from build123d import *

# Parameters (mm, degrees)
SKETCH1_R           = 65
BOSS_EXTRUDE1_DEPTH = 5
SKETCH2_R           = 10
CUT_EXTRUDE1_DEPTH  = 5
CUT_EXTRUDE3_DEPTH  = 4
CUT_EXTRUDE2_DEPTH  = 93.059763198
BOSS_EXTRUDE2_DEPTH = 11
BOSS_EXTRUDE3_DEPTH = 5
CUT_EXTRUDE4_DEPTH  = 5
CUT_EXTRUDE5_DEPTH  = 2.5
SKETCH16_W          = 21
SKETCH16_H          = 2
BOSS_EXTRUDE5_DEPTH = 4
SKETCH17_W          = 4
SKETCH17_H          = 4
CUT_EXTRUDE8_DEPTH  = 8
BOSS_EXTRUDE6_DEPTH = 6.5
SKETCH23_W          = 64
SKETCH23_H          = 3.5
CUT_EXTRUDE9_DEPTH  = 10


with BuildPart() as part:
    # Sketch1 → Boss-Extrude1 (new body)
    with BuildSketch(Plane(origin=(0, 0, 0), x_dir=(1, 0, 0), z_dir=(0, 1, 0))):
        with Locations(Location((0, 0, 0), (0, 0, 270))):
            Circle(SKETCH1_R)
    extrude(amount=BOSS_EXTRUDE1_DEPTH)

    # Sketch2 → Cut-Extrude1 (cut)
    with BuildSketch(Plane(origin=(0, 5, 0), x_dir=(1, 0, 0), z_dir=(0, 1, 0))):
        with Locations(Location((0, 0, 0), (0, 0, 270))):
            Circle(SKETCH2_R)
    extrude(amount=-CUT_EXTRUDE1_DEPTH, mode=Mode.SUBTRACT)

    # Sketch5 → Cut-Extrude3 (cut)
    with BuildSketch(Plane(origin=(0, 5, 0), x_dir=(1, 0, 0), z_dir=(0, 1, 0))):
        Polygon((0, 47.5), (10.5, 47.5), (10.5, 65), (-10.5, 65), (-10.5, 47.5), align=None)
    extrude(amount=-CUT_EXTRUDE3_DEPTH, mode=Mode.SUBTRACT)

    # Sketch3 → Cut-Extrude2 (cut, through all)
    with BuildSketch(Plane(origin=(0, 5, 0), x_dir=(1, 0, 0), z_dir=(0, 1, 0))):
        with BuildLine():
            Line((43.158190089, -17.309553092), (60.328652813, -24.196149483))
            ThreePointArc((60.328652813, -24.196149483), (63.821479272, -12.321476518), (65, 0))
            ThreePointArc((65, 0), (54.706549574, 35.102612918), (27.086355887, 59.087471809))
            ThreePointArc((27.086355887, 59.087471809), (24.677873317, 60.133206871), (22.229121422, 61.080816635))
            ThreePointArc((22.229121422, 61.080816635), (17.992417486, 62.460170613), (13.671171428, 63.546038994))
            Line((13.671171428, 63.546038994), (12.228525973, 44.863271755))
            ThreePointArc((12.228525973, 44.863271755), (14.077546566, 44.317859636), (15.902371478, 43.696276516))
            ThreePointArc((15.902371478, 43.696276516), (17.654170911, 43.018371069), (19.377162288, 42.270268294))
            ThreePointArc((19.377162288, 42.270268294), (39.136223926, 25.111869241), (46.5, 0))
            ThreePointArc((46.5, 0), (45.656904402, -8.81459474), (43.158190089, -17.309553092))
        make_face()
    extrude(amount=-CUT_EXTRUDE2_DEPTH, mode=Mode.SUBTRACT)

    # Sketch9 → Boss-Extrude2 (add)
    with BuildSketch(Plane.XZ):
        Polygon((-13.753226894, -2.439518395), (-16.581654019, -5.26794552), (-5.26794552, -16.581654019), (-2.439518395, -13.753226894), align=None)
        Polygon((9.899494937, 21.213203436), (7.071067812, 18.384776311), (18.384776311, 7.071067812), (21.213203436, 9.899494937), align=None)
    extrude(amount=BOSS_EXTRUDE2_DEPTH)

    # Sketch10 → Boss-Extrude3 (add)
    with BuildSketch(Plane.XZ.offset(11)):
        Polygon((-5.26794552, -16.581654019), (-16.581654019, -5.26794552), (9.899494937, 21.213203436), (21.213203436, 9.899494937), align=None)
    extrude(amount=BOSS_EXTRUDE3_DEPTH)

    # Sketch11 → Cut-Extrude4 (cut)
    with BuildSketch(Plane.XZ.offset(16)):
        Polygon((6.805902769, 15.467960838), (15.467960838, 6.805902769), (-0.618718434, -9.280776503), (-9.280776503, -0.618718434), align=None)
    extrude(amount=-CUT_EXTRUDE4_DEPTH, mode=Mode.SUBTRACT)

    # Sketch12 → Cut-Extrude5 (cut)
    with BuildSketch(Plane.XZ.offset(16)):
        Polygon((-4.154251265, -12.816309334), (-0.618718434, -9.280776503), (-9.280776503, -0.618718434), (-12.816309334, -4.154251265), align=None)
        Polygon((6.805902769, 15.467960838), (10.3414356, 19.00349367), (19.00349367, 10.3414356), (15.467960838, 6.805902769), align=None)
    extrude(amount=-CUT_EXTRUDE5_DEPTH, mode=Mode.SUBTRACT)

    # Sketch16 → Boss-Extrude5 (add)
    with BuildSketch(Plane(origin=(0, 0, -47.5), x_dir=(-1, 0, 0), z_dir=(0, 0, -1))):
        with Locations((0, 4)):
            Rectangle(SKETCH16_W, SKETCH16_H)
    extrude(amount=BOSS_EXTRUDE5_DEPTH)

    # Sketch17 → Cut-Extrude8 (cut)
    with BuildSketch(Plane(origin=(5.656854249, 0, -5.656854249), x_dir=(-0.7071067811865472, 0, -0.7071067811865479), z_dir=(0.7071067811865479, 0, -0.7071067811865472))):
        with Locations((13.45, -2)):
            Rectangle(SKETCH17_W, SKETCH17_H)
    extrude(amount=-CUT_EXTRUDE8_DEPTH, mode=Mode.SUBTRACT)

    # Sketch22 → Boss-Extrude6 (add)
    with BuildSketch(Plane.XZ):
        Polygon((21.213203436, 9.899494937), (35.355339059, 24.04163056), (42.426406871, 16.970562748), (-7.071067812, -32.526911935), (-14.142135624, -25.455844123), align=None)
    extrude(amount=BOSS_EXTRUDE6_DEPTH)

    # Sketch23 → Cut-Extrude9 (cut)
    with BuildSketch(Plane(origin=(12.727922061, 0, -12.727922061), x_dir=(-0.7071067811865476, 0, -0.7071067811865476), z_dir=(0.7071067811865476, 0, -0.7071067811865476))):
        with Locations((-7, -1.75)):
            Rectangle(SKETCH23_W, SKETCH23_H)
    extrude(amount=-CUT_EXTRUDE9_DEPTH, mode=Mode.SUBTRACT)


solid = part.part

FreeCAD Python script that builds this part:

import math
import FreeCAD as App
import Part
import Sketcher
Q = App.Units.Quantity


def add_polygon(sketch, points):
    """Adds a closed chain of lines whose ends are joined by coincident constraints."""
    first, n = sketch.GeometryCount, len(points)
    for a, b in zip(points, points[1:] + points[:1]):
        sketch.addGeometry(Part.LineSegment(App.Vector(*a, 0), App.Vector(*b, 0)), False)
    for i in range(n):
        sketch.addConstraint(Sketcher.Constraint("Coincident", first + i, 2, first + (i + 1) % n, 1))

doc = App.newDocument("Part")
params = doc.addObject("Spreadsheet::Sheet", "Params")
for row, (alias, value) in enumerate([
    ("sketch1_diameter", "130 mm"),
    ("pad1_length", "5 mm"),
    ("sketch2_diameter", "20 mm"),
    ("pocket1_length", "5 mm"),
    ("sketch3_width", "21 mm"),
    ("sketch3_height", "17.5 mm"),
    ("pocket2_length", "4 mm"),
    ("sketch4_radius", "65 mm"),
    ("sketch4_radius2", "46.5 mm"),
    ("sketch5_length", "4 mm"),
    ("sketch5_length2", "16 mm"),
    ("pad2_length", "11 mm"),
    ("sketch6_length", "16 mm"),
    ("sketch6_length2", "37.45 mm"),
    ("pad3_length", "5 mm"),
    ("sketch7_length", "12.25 mm"),
    ("sketch7_length2", "22.75 mm"),
    ("pocket4_length", "5 mm"),
    ("sketch8_length", "4.999998 mm"),
    ("sketch8_length2", "12.25 mm"),
    ("pocket5_length", "2.5 mm"),
    ("sketch9_width", "21 mm"),
    ("sketch9_height", "2 mm"),
    ("pad4_length", "4 mm"),
    ("sketch10_width", "4 mm"),
    ("pocket6_length", "8 mm"),
    ("sketch11_length", "70 mm"),
    ("sketch11_length2", "10 mm"),
    ("pad5_length", "6.5 mm"),
    ("sketch12_width", "64 mm"),
    ("sketch12_height", "3.5 mm"),
    ("pocket7_length", "10 mm"),
], start=1):
    params.set(f"A{row}", alias)
    params.set(f"B{row}", "=" + value)
    params.setAlias(f"B{row}", alias)

body = doc.addObject("PartDesign::Body", "Body")

sketch1 = doc.addObject("Sketcher::SketchObject", "Sketch")
body.addObject(sketch1)
sketch1.AttachmentSupport = (doc.XZ_Plane, [""])
sketch1.MapMode = "FlatFace"
sketch1.addGeometry(Part.Circle(App.Vector(0, 0, 0), App.Vector(0, 0, 1), 65), False)
sketch1.addConstraint(Sketcher.Constraint("Coincident", 0, 3, -1, 1))
sketch1.addConstraint(Sketcher.Constraint("Diameter", 0, 130.0))
sketch1.setExpression("Constraints[1]", "Params.sketch1_diameter")
pad1 = doc.addObject("PartDesign::Pad", "Pad")
body.addObject(pad1)
pad1.Profile = sketch1
pad1.setExpression("Length", "Params.pad1_length")
pad1.Reversed = True

sketch2 = doc.addObject("Sketcher::SketchObject", "Sketch001")
body.addObject(sketch2)
sketch2.AttachmentSupport = (doc.XZ_Plane, [""])
sketch2.MapMode = "FlatFace"
sketch2.AttachmentOffset = App.Placement(App.Vector(0, 0, -5), App.Rotation())
sketch2.addGeometry(Part.Circle(App.Vector(0, 0, 0), App.Vector(0, 0, 1), 10), False)
sketch2.addConstraint(Sketcher.Constraint("Coincident", 0, 3, -1, 1))
sketch2.addConstraint(Sketcher.Constraint("Diameter", 0, 20.0))
sketch2.setExpression("Constraints[1]", "Params.sketch2_diameter")
pocket1 = doc.addObject("PartDesign::Pocket", "Pocket")
body.addObject(pocket1)
pocket1.Profile = sketch2
pocket1.setExpression("Length", "Params.pocket1_length")
pocket1.Reversed = True

sketch3 = doc.addObject("Sketcher::SketchObject", "Sketch002")
body.addObject(sketch3)
sketch3.AttachmentSupport = (doc.XZ_Plane, [""])
sketch3.MapMode = "FlatFace"
sketch3.AttachmentOffset = App.Placement(App.Vector(0, 0, -5), App.Rotation())
add_polygon(sketch3, [(10, -48), (10, -65), (-10, -65), (-10, -48)])
sketch3.addConstraint(Sketcher.Constraint("Vertical", 0))
sketch3.addConstraint(Sketcher.Constraint("Horizontal", 1))
sketch3.addConstraint(Sketcher.Constraint("Vertical", 2))
sketch3.addConstraint(Sketcher.Constraint("Horizontal", 3))
sketch3.addConstraint(Sketcher.Constraint("DistanceX", 1, 2, 1, 1, 21.0))
sketch3.addConstraint(Sketcher.Constraint("DistanceY", 0, 2, 0, 1, 17.5))
sketch3.addConstraint(Sketcher.Constraint("DistanceY", 0, 2, -1, 1, 65.0))
sketch3.addConstraint(Sketcher.Constraint("DistanceX", -1, 1, 0, 2, 10.5))
sketch3.setExpression("Constraints[8]", "Params.sketch3_width")
sketch3.setExpression("Constraints[9]", "Params.sketch3_height")
pocket2 = doc.addObject("PartDesign::Pocket", "Pocket001")
body.addObject(pocket2)
pocket2.Profile = sketch3
pocket2.setExpression("Length", "Params.pocket2_length")
pocket2.Reversed = True

sketch4 = doc.addObject("Sketcher::SketchObject", "Sketch003")
body.addObject(sketch4)
sketch4.AttachmentSupport = (doc.XZ_Plane, [""])
sketch4.MapMode = "FlatFace"
sketch4.AttachmentOffset = App.Placement(App.Vector(0, 0, -5), App.Rotation())
sketch4.addGeometry(Part.LineSegment(App.Vector(43.2, 17.3, 0), App.Vector(60.3, 24.2, 0)), False)
sketch4.addGeometry(Part.ArcOfCircle(Part.Circle(App.Vector(0, 0, 0), App.Vector(0, 0, 1), 65), math.radians(0), math.radians(22)), False)
sketch4.addGeometry(Part.ArcOfCircle(Part.Circle(App.Vector(0, 0, 0), App.Vector(0, 0, 1), 65), math.radians(-65), math.radians(0)), False)
sketch4.addGeometry(Part.ArcOfCircle(Part.Circle(App.Vector(0, 0, 0), App.Vector(0, 0, 1), 65), math.radians(-70), math.radians(-65.37)), False)
sketch4.addGeometry(Part.ArcOfCircle(Part.Circle(App.Vector(0, 0, 0), App.Vector(0, 0, 1), 65), math.radians(-77.86), math.radians(-70)), False)
sketch4.addGeometry(Part.LineSegment(App.Vector(13.7, -63.5, 0), App.Vector(12.2, -44.9, 0)), False)
sketch4.addGeometry(Part.ArcOfCircle(Part.Circle(App.Vector(0, 0, 0), App.Vector(0, 0, 1), 46.5), math.radians(-74.75), math.radians(-70)), False)
sketch4.addGeometry(Part.ArcOfCircle(Part.Circle(App.Vector(0, 0, 0), App.Vector(0, 0, 1), 46.5), math.radians(-70), math.radians(-65.37)), False)
sketch4.addGeometry(Part.ArcOfCircle(Part.Circle(App.Vector(0, 0, 0), App.Vector(0, 0, 1), 46.5), math.radians(-65), math.radians(0)), False)
sketch4.addGeometry(Part.ArcOfCircle(Part.Circle(App.Vector(0, 0, 0), App.Vector(0, 0, 1), 46.5), math.radians(0), math.radians(22)), False)
sketch4.addConstraint(Sketcher.Constraint("Coincident", 0, 2, 1, 2))
sketch4.addConstraint(Sketcher.Constraint("Tangent", 1, 1, 2, 2))
sketch4.addConstraint(Sketcher.Constraint("Tangent", 2, 1, 3, 2))
sketch4.addConstraint(Sketcher.Constraint("Tangent", 3, 1, 4, 2))
sketch4.addConstraint(Sketcher.Constraint("Coincident", 4, 1, 5, 1))
sketch4.addConstraint(Sketcher.Constraint("Coincident", 5, 2, 6, 1))
sketch4.addConstraint(Sketcher.Constraint("Tangent", 6, 2, 7, 1))
sketch4.addConstraint(Sketcher.Constraint("Tangent", 7, 2, 8, 1))
sketch4.addConstraint(Sketcher.Constraint("Tangent", 8, 2, 9, 1))
sketch4.addConstraint(Sketcher.Constraint("Coincident", 9, 2, 0, 1))
sketch4.addConstraint(Sketcher.Constraint("Coincident", 1, 3, -1, 1))
sketch4.addConstraint(Sketcher.Constraint("Coincident", 3, 3, -1, 1))
sketch4.addConstraint(Sketcher.Constraint("Coincident", 6, 3, -1, 1))
sketch4.addConstraint(Sketcher.Constraint("Coincident", 8, 3, -1, 1))
sketch4.addConstraint(Sketcher.Constraint("Equal", 3, 4))
sketch4.addConstraint(Sketcher.Constraint("Equal", 8, 9))
sketch4.addConstraint(Sketcher.Constraint("PointOnObject", 1, 1, -1))
sketch4.addConstraint(Sketcher.Constraint("PointOnObject", 8, 2, -1))
sketch4.addConstraint(Sketcher.Constraint("Radius", 1, 65.0))
sketch4.addConstraint(Sketcher.Constraint("Radius", 6, 46.5))
sketch4.addConstraint(Sketcher.Constraint("DistanceY", 2, 1, 5, 2, 14.2242))
sketch4.addConstraint(Sketcher.Constraint("DistanceX", 4, 1, 6, 2, 2.2312))
sketch4.addConstraint(Sketcher.Constraint("DistanceY", -1, 1, 0, 2, 24.196149))
sketch4.addConstraint(Sketcher.Constraint("DistanceY", 2, 1, -1, 1, 59.087472))
sketch4.addConstraint(Sketcher.Constraint("DistanceX", -1, 1, 3, 1, 22.229121))
sketch4.addConstraint(Sketcher.Constraint("DistanceX", -1, 1, 4, 1, 13.671171))
sketch4.addConstraint(Sketcher.Constraint("DistanceY", 7, 2, -1, 1, 42.270268))
sketch4.addConstraint(Sketcher.Constraint("DistanceX", -1, 1, 9, 2, 43.15819))
sketch4.setExpression("Constraints[18]", "Params.sketch4_radius")
sketch4.setExpression("Constraints[19]", "Params.sketch4_radius2")
pocket3 = doc.addObject("PartDesign::Pocket", "Pocket002")
body.addObject(pocket3)
pocket3.Profile = sketch4
pocket3.Type = "ThroughAll"
pocket3.Reversed = True

sketch5 = doc.addObject("Sketcher::SketchObject", "Sketch004")
body.addObject(sketch5)
sketch5.AttachmentSupport = (doc.XZ_Plane, [""])
sketch5.MapMode = "FlatFace"
add_polygon(sketch5, [(-13.8, -2.4), (-16.6, -5.3), (-5.3, -16.6), (-2.4, -13.8)])
add_polygon(sketch5, [(9.9, 21.2), (7.1, 18.4), (18.4, 7.1), (21.2, 9.9)])
sketch5.addConstraint(Sketcher.Constraint("Perpendicular", 0, 1))
sketch5.addConstraint(Sketcher.Constraint("Perpendicular", 1, 2))
sketch5.addConstraint(Sketcher.Constraint("Perpendicular", 2, 3))
sketch5.addConstraint(Sketcher.Constraint("Perpendicular", 3, 4))
sketch5.addConstraint(Sketcher.Constraint("Perpendicular", 4, 5))
sketch5.addConstraint(Sketcher.Constraint("Perpendicular", 5, 6))
sketch5.addConstraint(Sketcher.Constraint("Perpendicular", 6, 7))
sketch5.addConstraint(Sketcher.Constraint("Equal", 2, 4))
sketch5.addConstraint(Sketcher.Constraint("Equal", 3, 5))
sketch5.addConstraint(Sketcher.Constraint("Angle", 0, Q("-135 deg")))
sketch5.addConstraint(Sketcher.Constraint("Distance", 0, 4.0))
sketch5.addConstraint(Sketcher.Constraint("Distance", 1, 16.0))
sketch5.addConstraint(Sketcher.Constraint("DistanceX", 2, 2, -1, 1, 2.439518))
sketch5.addConstraint(Sketcher.Constraint("DistanceY", 3, 2, -1, 1, 2.439518))
sketch5.addConstraint(Sketcher.Constraint("DistanceX", 0, 2, 4, 2, 23.652722))
sketch5.addConstraint(Sketcher.Constraint("DistanceY", 0, 2, 4, 2, 23.652722))
sketch5.setExpression("Constraints[18]", "Params.sketch5_length")
sketch5.setExpression("Constraints[19]", "Params.sketch5_length2")
pad2 = doc.addObject("PartDesign::Pad", "Pad001")
body.addObject(pad2)
pad2.Profile = sketch5
pad2.setExpression("Length", "Params.pad2_length")

sketch6 = doc.addObject("Sketcher::SketchObject", "Sketch005")
body.addObject(sketch6)
sketch6.AttachmentSupport = (doc.XZ_Plane, [""])
sketch6.MapMode = "FlatFace"
sketch6.AttachmentOffset = App.Placement(App.Vector(0, 0, 11), App.Rotation())
add_polygon(sketch6, [(-17, -5), (-5, -17), (21, 10), (10, 21)])
sketch6.addConstraint(Sketcher.Constraint("Perpendicular", 0, 1))
sketch6.addConstraint(Sketcher.Constraint("Perpendicular", 1, 2))
sketch6.addConstraint(Sketcher.Constraint("Perpendicular", 2, 3))
sketch6.addConstraint(Sketcher.Constraint("Angle", 0, Q("-45 deg")))
sketch6.addConstraint(Sketcher.Constraint("Distance", 0, 16.0))
sketch6.addConstraint(Sketcher.Constraint("Distance", 1, 37.45))
sketch6.addConstraint(Sketcher.Constraint("DistanceX", 0, 2, -1, 1, 5.267946))
sketch6.addConstraint(Sketcher.Constraint("DistanceY", 0, 2, -1, 1, 16.581654))
sketch6.setExpression("Constraints[8]", "Params.sketch6_length")
sketch6.setExpression("Constraints[9]", "Params.sketch6_length2")
pad3 = doc.addObject("PartDesign::Pad", "Pad002")
body.addObject(pad3)
pad3.Profile = sketch6
pad3.setExpression("Length", "Params.pad3_length")

sketch7 = doc.addObject("Sketcher::SketchObject", "Sketch006")
body.addObject(sketch7)
sketch7.AttachmentSupport = (doc.XZ_Plane, [""])
sketch7.MapMode = "FlatFace"
sketch7.AttachmentOffset = App.Placement(App.Vector(0, 0, 16), App.Rotation())
add_polygon(sketch7, [(15, 7), (7, 15), (-9, -1), (-1, -9)])
sketch7.addConstraint(Sketcher.Constraint("Perpendicular", 0, 1))
sketch7.addConstraint(Sketcher.Constraint("Perpendicular", 1, 2))
sketch7.addConstraint(Sketcher.Constraint("Perpendicular", 2, 3))
sketch7.addConstraint(Sketcher.Constraint("Angle", 0, Q("135 deg")))
sketch7.addConstraint(Sketcher.Constraint("Distance", 0, 12.25))
sketch7.addConstraint(Sketcher.Constraint("Distance", 1, 22.75))
sketch7.addConstraint(Sketcher.Constraint("DistanceY", -1, 1, 0, 2, 15.467961))
sketch7.addConstraint(Sketcher.Constraint("DistanceX", 2, 2, -1, 1, 0.618718))
sketch7.setExpression("Constraints[8]", "Params.sketch7_length")
sketch7.setExpression("Constraints[9]", "Params.sketch7_length2")
pocket4 = doc.addObject("PartDesign::Pocket", "Pocket003")
body.addObject(pocket4)
pocket4.Profile = sketch7
pocket4.setExpression("Length", "Params.pocket4_length")

sketch8 = doc.addObject("Sketcher::SketchObject", "Sketch007")
body.addObject(sketch8)
sketch8.AttachmentSupport = (doc.XZ_Plane, [""])
sketch8.MapMode = "FlatFace"
sketch8.AttachmentOffset = App.Placement(App.Vector(0, 0, 16), App.Rotation())
add_polygon(sketch8, [(-4.2, -12.8), (-0.6, -9.3), (-9.3, -0.6), (-12.8, -4.2)])
add_polygon(sketch8, [(10.3, 19), (6.8, 15.5), (15.5, 6.8), (19, 10.3)])
sketch8.addConstraint(Sketcher.Constraint("Perpendicular", 0, 1))
sketch8.addConstraint(Sketcher.Constraint("Perpendicular", 1, 2))
sketch8.addConstraint(Sketcher.Constraint("Perpendicular", 2, 3))
sketch8.addConstraint(Sketcher.Constraint("Perpendicular", 3, 4))
sketch8.addConstraint(Sketcher.Constraint("Perpendicular", 4, 5))
sketch8.addConstraint(Sketcher.Constraint("Perpendicular", 5, 6))
sketch8.addConstraint(Sketcher.Constraint("Perpendicular", 6, 7))
sketch8.addConstraint(Sketcher.Constraint("Equal", 2, 4))
sketch8.addConstraint(Sketcher.Constraint("Equal", 3, 5))
sketch8.addConstraint(Sketcher.Constraint("Angle", 0, Q("45 deg")))
sketch8.addConstraint(Sketcher.Constraint("Distance", 0, 4.999998))
sketch8.addConstraint(Sketcher.Constraint("Distance", 1, 12.25))
sketch8.addConstraint(Sketcher.Constraint("DistanceX", 0, 2, -1, 1, 0.618718))
sketch8.addConstraint(Sketcher.Constraint("DistanceY", 1, 2, -1, 1, 0.618718))
sketch8.addConstraint(Sketcher.Constraint("DistanceY", -1, 1, 4, 2, 15.467961))
sketch8.addConstraint(Sketcher.Constraint("DistanceX", -1, 1, 5, 2, 15.467961))
sketch8.setExpression("Constraints[18]", "Params.sketch8_length")
sketch8.setExpression("Constraints[19]", "Params.sketch8_length2")
pocket5 = doc.addObject("PartDesign::Pocket", "Pocket004")
body.addObject(pocket5)
pocket5.Profile = sketch8
pocket5.setExpression("Length", "Params.pocket5_length")

sketch9 = doc.addObject("Sketcher::SketchObject", "Sketch008")
body.addObject(sketch9)
sketch9.AttachmentSupport = (doc.XY_Plane, [""])
sketch9.MapMode = "FlatFace"
sketch9.AttachmentOffset = App.Placement(App.Vector(0, 0, -47.5), App.Rotation())
add_polygon(sketch9, [(10.5, 5), (10.5, 3), (-10.5, 3), (-10.5, 5)])
sketch9.addConstraint(Sketcher.Constraint("Vertical", 0))
sketch9.addConstraint(Sketcher.Constraint("Horizontal", 1))
sketch9.addConstraint(Sketcher.Constraint("Vertical", 2))
sketch9.addConstraint(Sketcher.Constraint("Horizontal", 3))
sketch9.addConstraint(Sketcher.Constraint("DistanceX", 1, 2, 1, 1, 21.0))
sketch9.addConstraint(Sketcher.Constraint("DistanceY", 0, 2, 0, 1, 2.0))
sketch9.addConstraint(Sketcher.Constraint("DistanceY", -1, 1, 0, 2, 3.0))
sketch9.addConstraint(Sketcher.Constraint("DistanceX", -1, 1, 0, 2, 10.5))
sketch9.setExpression("Constraints[8]", "Params.sketch9_width")
sketch9.setExpression("Constraints[9]", "Params.sketch9_height")
pad4 = doc.addObject("PartDesign::Pad", "Pad003")
body.addObject(pad4)
pad4.Profile = sketch9
pad4.setExpression("Length", "Params.pad4_length")
pad4.Reversed = True

sketch10 = doc.addObject("Sketcher::SketchObject", "Sketch009")
body.addObject(sketch10)
sketch10.Placement = App.Placement(App.Vector(5.656854, 0, -5.656854), App.Rotation(App.Vector(-0.707106781, 0, -0.707106781), App.Vector(0, 0.999999999, 0), App.Vector(0.707106781, 0, -0.707106781), "ZXY"))
add_polygon(sketch10, [(11.4, 0), (11.4, -4), (15.4, -4), (15.4, 0)])
sketch10.addConstraint(Sketcher.Constraint("Vertical", 0))
sketch10.addConstraint(Sketcher.Constraint("Horizontal", 1))
sketch10.addConstraint(Sketcher.Constraint("Vertical", 2))
sketch10.addConstraint(Sketcher.Constraint("Horizontal", 3))
sketch10.addConstraint(Sketcher.Constraint("PointOnObject", 2, 2, -1))
sketch10.addConstraint(Sketcher.Constraint("Equal", 3, 0))
sketch10.addConstraint(Sketcher.Constraint("DistanceX", 1, 1, 1, 2, 4.0))
sketch10.addConstraint(Sketcher.Constraint("DistanceX", -1, 1, 0, 2, 11.45))
sketch10.setExpression("Constraints[10]", "Params.sketch10_width")
pocket6 = doc.addObject("PartDesign::Pocket", "Pocket005")
body.addObject(pocket6)
pocket6.Profile = sketch10
pocket6.setExpression("Length", "Params.pocket6_length")

sketch11 = doc.addObject("Sketcher::SketchObject", "Sketch010")
body.addObject(sketch11)
sketch11.AttachmentSupport = (doc.XZ_Plane, [""])
sketch11.MapMode = "FlatFace"
add_polygon(sketch11, [(35, 24), (-14, -25), (-7, -33), (42, 17)])
sketch11.addConstraint(Sketcher.Constraint("Perpendicular", 0, 1))
sketch11.addConstraint(Sketcher.Constraint("Perpendicular", 1, 2))
sketch11.addConstraint(Sketcher.Constraint("Perpendicular", 2, 3))
sketch11.addConstraint(Sketcher.Constraint("Angle", 0, Q("-135 deg")))
sketch11.addConstraint(Sketcher.Constraint("Distance", 0, 70.0))
sketch11.addConstraint(Sketcher.Constraint("Distance", 1, 10.0))
sketch11.addConstraint(Sketcher.Constraint("DistanceY", 1, 2, -1, 1, 32.526912))
sketch11.addConstraint(Sketcher.Constraint("DistanceX", -1, 1, 3, 2, 35.355339))
sketch11.setExpression("Constraints[8]", "Params.sketch11_length")
sketch11.setExpression("Constraints[9]", "Params.sketch11_length2")
pad5 = doc.addObject("PartDesign::Pad", "Pad004")
body.addObject(pad5)
pad5.Profile = sketch11
pad5.setExpression("Length", "Params.pad5_length")

sketch12 = doc.addObject("Sketcher::SketchObject", "Sketch011")
body.addObject(sketch12)
sketch12.Placement = App.Placement(App.Vector(12.727922, 0, -12.727922), App.Rotation(App.Vector(-0.707106781, 0, -0.707106781), App.Vector(0, 0.999999999, 0), App.Vector(0.707106781, 0, -0.707106781), "ZXY"))
add_polygon(sketch12, [(-39, 0), (-39, -3.5), (25, -3.5), (25, 0)])
sketch12.addConstraint(Sketcher.Constraint("Vertical", 0))
sketch12.addConstraint(Sketcher.Constraint("Horizontal", 1))
sketch12.addConstraint(Sketcher.Constraint("Vertical", 2))
sketch12.addConstraint(Sketcher.Constraint("Horizontal", 3))
sketch12.addConstraint(Sketcher.Constraint("PointOnObject", 2, 2, -1))
sketch12.addConstraint(Sketcher.Constraint("DistanceX", 1, 1, 1, 2, 64.0))
sketch12.addConstraint(Sketcher.Constraint("DistanceY", 0, 2, 0, 1, 3.5))
sketch12.addConstraint(Sketcher.Constraint("DistanceX", 0, 2, -1, 1, 39.0))
sketch12.setExpression("Constraints[9]", "Params.sketch12_width")
sketch12.setExpression("Constraints[10]", "Params.sketch12_height")
pocket7 = doc.addObject("PartDesign::Pocket", "Pocket006")
body.addObject(pocket7)
pocket7.Profile = sketch12
pocket7.setExpression("Length", "Params.pocket7_length")

doc.recompute()
